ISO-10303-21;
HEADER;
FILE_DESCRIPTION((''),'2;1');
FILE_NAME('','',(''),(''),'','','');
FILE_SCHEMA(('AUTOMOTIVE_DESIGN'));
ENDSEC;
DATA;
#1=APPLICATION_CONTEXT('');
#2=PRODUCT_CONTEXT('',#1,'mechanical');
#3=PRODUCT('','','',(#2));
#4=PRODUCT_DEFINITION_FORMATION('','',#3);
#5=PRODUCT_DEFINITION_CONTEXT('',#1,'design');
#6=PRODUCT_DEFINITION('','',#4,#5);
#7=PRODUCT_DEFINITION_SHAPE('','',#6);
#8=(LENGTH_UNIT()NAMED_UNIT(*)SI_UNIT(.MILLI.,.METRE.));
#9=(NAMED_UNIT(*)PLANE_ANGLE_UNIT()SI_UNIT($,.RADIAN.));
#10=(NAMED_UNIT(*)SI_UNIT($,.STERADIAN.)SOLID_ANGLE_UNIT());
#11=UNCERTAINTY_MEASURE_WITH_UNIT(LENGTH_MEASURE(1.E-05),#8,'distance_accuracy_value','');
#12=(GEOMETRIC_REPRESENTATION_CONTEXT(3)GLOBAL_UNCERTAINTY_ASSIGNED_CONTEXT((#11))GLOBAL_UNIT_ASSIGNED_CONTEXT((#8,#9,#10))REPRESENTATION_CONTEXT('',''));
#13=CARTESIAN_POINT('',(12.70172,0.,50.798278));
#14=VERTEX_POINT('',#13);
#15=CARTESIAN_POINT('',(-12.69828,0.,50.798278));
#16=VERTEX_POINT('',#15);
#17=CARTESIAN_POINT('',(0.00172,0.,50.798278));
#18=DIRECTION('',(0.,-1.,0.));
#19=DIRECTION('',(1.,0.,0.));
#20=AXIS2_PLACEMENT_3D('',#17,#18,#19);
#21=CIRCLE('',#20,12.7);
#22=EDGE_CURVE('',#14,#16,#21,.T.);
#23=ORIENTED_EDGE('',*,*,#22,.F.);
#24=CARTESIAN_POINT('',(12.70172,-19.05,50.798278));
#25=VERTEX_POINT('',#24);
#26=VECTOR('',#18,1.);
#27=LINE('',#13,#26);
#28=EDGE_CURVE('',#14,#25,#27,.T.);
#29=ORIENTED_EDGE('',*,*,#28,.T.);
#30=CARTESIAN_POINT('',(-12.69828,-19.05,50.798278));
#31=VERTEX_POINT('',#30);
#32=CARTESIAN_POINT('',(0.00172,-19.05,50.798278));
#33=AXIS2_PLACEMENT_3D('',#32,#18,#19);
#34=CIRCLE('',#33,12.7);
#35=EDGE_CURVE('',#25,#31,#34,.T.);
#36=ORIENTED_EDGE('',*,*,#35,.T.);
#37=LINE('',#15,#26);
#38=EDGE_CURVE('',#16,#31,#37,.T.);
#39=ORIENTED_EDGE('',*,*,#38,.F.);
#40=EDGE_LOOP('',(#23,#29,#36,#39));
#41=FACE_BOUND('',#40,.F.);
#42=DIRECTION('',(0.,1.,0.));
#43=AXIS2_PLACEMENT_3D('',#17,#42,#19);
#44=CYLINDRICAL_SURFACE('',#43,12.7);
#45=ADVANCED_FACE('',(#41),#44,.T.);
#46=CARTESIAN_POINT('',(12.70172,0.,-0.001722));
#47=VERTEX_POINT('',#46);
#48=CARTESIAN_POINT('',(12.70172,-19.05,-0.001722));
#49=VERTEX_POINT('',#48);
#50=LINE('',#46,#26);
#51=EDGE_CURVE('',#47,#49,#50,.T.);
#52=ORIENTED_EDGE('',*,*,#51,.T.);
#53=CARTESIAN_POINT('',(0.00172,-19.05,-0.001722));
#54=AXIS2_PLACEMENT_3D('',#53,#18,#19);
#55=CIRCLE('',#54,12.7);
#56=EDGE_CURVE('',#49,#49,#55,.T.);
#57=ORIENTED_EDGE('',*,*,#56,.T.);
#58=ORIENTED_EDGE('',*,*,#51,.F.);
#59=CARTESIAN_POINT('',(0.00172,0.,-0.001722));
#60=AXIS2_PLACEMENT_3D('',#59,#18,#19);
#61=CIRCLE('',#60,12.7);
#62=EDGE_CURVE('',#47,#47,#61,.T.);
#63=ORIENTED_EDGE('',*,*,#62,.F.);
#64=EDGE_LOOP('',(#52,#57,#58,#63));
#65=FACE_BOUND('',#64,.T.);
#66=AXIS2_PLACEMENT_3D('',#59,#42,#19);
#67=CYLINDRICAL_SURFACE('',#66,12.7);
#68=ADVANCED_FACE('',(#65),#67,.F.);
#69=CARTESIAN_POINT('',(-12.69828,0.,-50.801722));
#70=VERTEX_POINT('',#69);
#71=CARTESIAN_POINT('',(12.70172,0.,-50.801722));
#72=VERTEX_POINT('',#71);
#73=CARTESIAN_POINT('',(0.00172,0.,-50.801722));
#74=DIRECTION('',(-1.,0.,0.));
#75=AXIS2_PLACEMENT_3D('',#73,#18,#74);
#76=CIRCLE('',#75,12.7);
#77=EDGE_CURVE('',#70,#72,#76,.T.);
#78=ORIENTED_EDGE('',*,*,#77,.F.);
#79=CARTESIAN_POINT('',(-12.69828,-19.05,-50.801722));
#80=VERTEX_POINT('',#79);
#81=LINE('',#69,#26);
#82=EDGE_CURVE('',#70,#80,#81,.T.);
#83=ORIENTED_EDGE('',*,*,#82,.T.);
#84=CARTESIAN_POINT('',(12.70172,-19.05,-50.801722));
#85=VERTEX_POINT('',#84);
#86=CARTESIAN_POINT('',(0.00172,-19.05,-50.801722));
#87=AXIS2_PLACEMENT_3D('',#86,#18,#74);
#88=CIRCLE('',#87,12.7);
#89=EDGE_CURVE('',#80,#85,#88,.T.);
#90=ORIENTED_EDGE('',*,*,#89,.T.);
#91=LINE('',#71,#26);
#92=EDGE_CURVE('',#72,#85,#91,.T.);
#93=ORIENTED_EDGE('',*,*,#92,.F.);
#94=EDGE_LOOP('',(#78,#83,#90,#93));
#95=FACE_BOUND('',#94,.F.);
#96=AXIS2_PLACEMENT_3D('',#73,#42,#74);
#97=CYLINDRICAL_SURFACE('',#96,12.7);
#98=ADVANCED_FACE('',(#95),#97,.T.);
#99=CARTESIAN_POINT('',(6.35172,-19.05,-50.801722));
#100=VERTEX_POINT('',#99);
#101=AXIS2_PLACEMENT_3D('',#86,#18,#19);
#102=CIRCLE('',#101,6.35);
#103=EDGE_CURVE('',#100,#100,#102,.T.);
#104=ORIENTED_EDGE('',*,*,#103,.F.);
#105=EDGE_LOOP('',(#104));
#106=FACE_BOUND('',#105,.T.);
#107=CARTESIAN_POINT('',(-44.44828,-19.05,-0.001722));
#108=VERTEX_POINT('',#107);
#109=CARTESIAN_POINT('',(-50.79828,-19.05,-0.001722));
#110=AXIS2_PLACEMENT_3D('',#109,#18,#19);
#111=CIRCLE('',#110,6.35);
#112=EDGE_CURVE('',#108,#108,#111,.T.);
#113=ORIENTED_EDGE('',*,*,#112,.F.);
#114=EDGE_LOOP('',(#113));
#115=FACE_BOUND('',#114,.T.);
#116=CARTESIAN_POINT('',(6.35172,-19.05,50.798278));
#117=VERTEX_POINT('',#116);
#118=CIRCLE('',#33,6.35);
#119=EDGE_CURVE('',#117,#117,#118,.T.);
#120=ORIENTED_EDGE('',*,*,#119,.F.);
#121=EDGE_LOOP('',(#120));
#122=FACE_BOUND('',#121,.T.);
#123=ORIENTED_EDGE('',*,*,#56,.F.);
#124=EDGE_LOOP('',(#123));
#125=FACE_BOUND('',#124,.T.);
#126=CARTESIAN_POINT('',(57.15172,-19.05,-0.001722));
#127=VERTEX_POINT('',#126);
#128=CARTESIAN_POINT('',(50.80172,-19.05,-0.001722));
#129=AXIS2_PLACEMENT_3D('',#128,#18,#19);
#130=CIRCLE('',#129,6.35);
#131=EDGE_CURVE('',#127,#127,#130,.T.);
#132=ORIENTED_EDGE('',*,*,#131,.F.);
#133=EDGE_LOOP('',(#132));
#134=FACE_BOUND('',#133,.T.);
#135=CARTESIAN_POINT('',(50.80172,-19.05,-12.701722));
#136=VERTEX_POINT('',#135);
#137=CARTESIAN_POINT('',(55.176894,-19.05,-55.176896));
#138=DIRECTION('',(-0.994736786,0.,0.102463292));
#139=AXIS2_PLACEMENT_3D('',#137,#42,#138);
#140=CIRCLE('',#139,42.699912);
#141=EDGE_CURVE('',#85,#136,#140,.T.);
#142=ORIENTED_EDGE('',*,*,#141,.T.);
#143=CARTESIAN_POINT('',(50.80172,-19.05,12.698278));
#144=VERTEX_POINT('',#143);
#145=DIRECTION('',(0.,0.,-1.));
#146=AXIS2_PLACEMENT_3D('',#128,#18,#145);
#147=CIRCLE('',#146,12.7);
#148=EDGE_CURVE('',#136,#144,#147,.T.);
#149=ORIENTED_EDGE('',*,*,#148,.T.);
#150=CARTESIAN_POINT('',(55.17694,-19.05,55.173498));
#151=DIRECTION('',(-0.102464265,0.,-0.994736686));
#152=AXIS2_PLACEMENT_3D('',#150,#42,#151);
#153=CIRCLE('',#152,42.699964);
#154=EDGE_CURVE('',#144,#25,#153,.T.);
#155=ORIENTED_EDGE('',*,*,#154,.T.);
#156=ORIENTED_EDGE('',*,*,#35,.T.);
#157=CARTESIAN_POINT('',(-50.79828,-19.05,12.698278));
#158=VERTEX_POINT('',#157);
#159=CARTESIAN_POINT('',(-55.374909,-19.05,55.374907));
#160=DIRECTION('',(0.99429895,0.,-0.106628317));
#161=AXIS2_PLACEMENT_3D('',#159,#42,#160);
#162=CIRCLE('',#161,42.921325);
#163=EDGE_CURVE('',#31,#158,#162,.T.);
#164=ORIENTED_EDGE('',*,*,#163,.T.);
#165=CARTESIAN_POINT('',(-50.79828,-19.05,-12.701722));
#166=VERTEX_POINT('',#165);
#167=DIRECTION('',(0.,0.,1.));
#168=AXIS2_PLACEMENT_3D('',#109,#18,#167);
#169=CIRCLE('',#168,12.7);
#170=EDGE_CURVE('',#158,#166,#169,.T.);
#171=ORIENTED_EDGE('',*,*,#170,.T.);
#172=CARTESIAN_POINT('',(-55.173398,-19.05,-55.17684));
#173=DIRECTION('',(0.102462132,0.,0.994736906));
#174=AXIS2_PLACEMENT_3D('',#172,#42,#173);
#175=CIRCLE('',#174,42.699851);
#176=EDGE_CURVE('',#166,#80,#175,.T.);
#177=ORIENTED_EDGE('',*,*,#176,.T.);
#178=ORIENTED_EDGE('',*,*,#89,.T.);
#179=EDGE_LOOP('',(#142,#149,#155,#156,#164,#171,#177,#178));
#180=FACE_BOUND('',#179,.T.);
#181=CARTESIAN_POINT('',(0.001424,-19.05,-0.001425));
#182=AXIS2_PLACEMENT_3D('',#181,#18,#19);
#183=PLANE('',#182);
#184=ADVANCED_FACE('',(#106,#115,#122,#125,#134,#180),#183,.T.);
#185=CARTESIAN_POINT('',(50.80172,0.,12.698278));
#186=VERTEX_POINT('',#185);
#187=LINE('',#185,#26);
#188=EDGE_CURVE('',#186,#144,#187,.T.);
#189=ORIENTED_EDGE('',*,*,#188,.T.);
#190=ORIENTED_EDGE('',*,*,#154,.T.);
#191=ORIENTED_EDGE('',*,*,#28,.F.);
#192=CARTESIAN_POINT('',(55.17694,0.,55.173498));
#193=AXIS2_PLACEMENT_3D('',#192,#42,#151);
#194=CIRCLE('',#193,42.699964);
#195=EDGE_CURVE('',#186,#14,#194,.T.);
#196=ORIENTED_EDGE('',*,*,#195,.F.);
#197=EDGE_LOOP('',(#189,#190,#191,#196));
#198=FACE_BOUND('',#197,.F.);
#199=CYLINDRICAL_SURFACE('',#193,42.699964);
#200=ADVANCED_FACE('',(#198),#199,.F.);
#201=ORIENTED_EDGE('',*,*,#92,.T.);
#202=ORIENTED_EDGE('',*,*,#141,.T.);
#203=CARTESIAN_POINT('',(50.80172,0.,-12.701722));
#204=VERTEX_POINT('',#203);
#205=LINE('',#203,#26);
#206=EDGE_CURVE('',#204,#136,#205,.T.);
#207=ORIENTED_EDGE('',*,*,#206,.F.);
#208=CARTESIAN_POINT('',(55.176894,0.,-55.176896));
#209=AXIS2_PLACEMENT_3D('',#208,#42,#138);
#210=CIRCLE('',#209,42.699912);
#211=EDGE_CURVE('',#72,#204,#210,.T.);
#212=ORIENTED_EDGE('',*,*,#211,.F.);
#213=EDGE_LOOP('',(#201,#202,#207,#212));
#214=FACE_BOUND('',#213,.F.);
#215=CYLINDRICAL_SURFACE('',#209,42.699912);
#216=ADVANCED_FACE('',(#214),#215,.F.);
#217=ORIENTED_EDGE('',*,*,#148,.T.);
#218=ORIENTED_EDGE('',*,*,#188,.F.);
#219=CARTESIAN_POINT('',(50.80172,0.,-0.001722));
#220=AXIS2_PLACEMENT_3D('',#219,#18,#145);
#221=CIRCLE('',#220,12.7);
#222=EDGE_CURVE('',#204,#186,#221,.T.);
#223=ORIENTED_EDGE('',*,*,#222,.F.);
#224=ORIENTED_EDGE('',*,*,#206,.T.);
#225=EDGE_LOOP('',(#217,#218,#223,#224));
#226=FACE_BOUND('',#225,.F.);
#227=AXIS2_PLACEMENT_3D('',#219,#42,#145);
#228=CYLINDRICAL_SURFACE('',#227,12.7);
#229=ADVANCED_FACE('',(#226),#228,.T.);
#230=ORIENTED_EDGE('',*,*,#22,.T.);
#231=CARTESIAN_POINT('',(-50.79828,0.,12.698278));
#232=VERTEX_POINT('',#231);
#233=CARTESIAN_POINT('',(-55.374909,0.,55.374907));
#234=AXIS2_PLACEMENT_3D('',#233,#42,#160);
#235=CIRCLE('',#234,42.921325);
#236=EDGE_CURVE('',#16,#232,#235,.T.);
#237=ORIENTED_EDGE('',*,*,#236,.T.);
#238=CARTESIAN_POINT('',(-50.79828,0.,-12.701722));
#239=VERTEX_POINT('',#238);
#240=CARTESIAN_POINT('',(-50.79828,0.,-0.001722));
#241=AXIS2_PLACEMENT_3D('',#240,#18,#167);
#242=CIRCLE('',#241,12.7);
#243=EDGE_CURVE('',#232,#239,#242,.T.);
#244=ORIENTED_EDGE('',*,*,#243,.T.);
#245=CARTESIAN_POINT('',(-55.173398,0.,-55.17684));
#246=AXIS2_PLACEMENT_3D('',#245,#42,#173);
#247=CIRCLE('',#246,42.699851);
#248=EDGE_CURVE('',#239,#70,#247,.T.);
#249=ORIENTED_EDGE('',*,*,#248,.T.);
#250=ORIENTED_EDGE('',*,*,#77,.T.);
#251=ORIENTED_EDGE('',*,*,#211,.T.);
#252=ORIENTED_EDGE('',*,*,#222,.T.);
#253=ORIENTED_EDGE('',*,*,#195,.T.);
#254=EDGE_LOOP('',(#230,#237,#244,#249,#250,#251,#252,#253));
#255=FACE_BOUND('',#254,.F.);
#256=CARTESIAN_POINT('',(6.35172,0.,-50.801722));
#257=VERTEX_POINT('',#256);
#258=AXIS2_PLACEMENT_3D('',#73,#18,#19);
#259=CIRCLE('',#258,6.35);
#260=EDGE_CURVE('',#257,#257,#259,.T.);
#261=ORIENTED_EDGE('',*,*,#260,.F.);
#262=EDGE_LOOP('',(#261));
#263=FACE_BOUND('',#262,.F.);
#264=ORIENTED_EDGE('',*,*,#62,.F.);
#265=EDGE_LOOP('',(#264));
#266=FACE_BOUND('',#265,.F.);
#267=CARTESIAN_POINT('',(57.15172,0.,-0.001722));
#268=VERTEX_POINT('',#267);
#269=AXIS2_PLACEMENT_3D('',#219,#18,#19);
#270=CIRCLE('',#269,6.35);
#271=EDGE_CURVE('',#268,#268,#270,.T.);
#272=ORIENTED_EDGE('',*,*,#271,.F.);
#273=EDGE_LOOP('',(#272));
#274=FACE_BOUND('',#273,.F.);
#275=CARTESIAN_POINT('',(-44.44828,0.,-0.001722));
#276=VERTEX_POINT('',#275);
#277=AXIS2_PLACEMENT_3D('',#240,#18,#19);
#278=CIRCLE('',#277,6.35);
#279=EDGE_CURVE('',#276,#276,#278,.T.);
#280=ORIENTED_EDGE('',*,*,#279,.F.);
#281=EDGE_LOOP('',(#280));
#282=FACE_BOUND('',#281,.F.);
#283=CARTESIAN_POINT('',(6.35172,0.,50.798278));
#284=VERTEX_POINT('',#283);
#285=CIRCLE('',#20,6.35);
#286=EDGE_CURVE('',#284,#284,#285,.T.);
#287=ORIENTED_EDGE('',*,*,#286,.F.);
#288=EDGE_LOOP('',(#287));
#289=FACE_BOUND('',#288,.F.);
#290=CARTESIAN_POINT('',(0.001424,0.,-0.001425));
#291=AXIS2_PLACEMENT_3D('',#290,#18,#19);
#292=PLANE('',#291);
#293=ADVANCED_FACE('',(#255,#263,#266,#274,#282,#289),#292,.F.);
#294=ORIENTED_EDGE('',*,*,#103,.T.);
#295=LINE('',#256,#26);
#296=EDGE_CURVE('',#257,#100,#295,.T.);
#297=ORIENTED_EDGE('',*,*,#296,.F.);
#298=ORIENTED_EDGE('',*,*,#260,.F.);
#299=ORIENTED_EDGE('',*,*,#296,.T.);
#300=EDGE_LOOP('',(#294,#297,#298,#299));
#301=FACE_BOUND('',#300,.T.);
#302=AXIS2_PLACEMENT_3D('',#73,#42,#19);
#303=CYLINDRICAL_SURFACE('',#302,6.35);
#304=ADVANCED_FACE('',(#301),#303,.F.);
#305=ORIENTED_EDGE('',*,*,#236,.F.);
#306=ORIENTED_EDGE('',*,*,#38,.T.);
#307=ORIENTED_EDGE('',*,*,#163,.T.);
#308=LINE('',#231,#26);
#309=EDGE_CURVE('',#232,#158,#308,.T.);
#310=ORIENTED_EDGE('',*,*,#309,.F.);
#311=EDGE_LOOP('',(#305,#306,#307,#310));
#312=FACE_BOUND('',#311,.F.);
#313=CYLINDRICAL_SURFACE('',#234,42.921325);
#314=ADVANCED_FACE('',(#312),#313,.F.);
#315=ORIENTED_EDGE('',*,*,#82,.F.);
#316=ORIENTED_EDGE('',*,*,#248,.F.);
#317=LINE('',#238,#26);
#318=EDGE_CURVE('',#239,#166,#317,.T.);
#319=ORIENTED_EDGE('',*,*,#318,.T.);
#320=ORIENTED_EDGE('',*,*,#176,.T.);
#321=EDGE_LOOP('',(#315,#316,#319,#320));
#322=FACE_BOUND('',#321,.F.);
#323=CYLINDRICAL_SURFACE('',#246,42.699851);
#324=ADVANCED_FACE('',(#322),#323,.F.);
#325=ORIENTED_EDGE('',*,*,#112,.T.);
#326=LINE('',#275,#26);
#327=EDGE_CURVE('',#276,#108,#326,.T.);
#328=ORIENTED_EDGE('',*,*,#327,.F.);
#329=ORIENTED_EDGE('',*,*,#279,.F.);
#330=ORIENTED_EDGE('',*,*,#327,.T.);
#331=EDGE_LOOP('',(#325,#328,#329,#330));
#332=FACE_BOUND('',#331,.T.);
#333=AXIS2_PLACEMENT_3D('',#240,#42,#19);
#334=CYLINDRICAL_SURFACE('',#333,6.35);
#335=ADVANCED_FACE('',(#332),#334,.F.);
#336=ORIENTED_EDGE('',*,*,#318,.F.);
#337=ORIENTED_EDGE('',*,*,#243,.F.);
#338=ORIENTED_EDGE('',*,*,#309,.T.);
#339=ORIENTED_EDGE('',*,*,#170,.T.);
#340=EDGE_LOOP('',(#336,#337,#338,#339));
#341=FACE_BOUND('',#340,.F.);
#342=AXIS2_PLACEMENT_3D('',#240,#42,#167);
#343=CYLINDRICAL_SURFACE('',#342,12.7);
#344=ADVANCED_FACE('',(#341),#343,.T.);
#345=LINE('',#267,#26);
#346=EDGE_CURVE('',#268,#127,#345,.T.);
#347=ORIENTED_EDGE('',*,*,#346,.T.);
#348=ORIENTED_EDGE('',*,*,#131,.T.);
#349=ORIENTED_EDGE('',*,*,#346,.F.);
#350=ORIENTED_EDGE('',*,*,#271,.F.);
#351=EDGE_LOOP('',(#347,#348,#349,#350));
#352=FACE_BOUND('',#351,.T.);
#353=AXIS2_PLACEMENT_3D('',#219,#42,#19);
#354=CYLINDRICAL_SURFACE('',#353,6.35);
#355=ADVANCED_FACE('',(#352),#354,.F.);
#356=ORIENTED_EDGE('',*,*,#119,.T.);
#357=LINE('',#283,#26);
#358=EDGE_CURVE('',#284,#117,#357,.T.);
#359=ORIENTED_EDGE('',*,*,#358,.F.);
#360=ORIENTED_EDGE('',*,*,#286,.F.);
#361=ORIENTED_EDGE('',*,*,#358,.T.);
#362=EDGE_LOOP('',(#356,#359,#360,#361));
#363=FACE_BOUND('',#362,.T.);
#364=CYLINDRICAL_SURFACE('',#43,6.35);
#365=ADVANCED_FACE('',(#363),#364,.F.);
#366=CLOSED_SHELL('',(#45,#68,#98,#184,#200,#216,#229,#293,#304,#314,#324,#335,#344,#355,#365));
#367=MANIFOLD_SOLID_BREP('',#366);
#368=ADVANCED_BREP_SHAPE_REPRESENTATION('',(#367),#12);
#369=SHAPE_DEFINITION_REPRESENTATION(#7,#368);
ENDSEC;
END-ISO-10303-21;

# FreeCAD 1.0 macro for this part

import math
import FreeCAD as App
import Part
import Sketcher
from FreeCAD import Vector
Q = App.Units.Quantity

doc = App.newDocument("Part")
params = doc.addObject("Spreadsheet::Sheet", "Params")
for row, (alias, value) in enumerate([
    ("sketch1_diameter", "1 in"),
    ("sketch1_diameter2", "0.5 in"),
    ("pad1_length", "0.75 in"),
], start=1):
    params.set(f"A{row}", alias)
    params.set(f"B{row}", "=" + value)
    params.setAlias(f"B{row}", alias)

body = doc.addObject("PartDesign::Body", "Body")

# Sketch on XZ plane
sketch1 = body.newObject("Sketcher::SketchObject", "Sketch")
sketch1.AttachmentSupport = (doc.getObject("XZ_Plane"), [""])
sketch1.MapMode = "FlatFace"
sketch1.addGeometry([
    Part.ArcOfCircle(Part.Circle(Vector(-55, 55, 0), Vector(0, 0, 1), 43), math.radians(-84), math.radians(-6)),  # 0
    Part.ArcOfCircle(Part.Circle(Vector(-51, 0, 0), Vector(0, 0, 1), 13), math.radians(90), math.radians(270)),  # 1
    Part.ArcOfCircle(Part.Circle(Vector(-55, -55, 0), Vector(0, 0, 1), 43), math.radians(6), math.radians(84)),  # 2
    Part.ArcOfCircle(Part.Circle(Vector(0, -51, 0), Vector(0, 0, 1), 13), math.radians(180), math.radians(360)),  # 3
    Part.ArcOfCircle(Part.Circle(Vector(55, -55, 0), Vector(0, 0, 1), 43), math.radians(96), math.radians(174)),  # 4
    Part.ArcOfCircle(Part.Circle(Vector(51, 0, 0), Vector(0, 0, 1), 13), math.radians(-90), math.radians(90)),  # 5
    Part.ArcOfCircle(Part.Circle(Vector(55, 55, 0), Vector(0, 0, 1), 43), math.radians(-174), math.radians(-96)),  # 6
    Part.ArcOfCircle(Part.Circle(Vector(0, 51, 0), Vector(0, 0, 1), 13), math.radians(0), math.radians(180)),  # 7
    Part.Circle(Vector(0, -51, 0), Vector(0, 0, 1), 6),  # 8
    Part.Circle(Vector(-51, 0, 0), Vector(0, 0, 1), 6),  # 9
    Part.Circle(Vector(0, 0, 0), Vector(0, 0, 1), 13),  # 10
    Part.Circle(Vector(0, 51, 0), Vector(0, 0, 1), 6),  # 11
    Part.Circle(Vector(51, 0, 0), Vector(0, 0, 1), 6),  # 12
], False)
sketch1.addConstraint([
    Sketcher.Constraint("Coincident", 0, 1, 1, 1),
    Sketcher.Constraint("Coincident", 1, 2, 2, 2),
    Sketcher.Constraint("Coincident", 2, 1, 3, 1),
    Sketcher.Constraint("Coincident", 3, 2, 4, 2),
    Sketcher.Constraint("Coincident", 4, 1, 5, 1),
    Sketcher.Constraint("Coincident", 5, 2, 6, 2),
    Sketcher.Constraint("Coincident", 6, 1, 7, 1),
    Sketcher.Constraint("Coincident", 7, 2, 0, 2),
    Sketcher.Constraint("Coincident", 8, 3, 3, 3),
    Sketcher.Constraint("Coincident", 9, 3, 1, 3),
    Sketcher.Constraint("Coincident", 11, 3, 7, 3),
    Sketcher.Constraint("Coincident", 12, 3, 5, 3),
    Sketcher.Constraint("Equal", 1, 3),
    Sketcher.Constraint("Equal", 3, 5),
    Sketcher.Constraint("Equal", 5, 7),
    Sketcher.Constraint("Equal", 8, 9),
    Sketcher.Constraint("Equal", 7, 10),
    Sketcher.Constraint("Equal", 9, 11),
    Sketcher.Constraint("Equal", 11, 12),
    Sketcher.Constraint("Horizontal", 1, 3, 5, 3),
    Sketcher.Constraint("Horizontal", 9, 3, 10, 3),
    Sketcher.Constraint("Horizontal", 8, 3, 2, 1),
    Sketcher.Constraint("Horizontal", 2, 1, 3, 2),
    Sketcher.Constraint("Horizontal", 11, 3, 6, 1),
    Sketcher.Constraint("Horizontal", 6, 1, 7, 2),
    Sketcher.Constraint("Vertical", 3, 3, 7, 3),
    Sketcher.Constraint("Vertical", 8, 3, 10, 3),
    Sketcher.Constraint("Vertical", 9, 3, 0, 1),
    Sketcher.Constraint("Vertical", 0, 1, 1, 2),
    Sketcher.Constraint("Vertical", 12, 3, 4, 1),
    Sketcher.Constraint("Vertical", 4, 1, 5, 2),
    Sketcher.Constraint("Diameter", 10, Q("1 in")),
    Sketcher.Constraint("Diameter", 8, Q("0.5 in")),
    Sketcher.Constraint("DistanceX", 1, 3, 3, 3, Q("2 in")),
    Sketcher.Constraint("DistanceY", 3, 3, 1, 3, Q("2 in")),
    Sketcher.Constraint("DistanceX", 3, 3, 5, 3, Q("2 in")),
    Sketcher.Constraint("DistanceY", 1, 3, 7, 3, Q("2 in")),
    Sketcher.Constraint("Radius", 2, 42.699851),
    Sketcher.Constraint("Radius", 0, 42.921325),
    Sketcher.Constraint("Radius", 4, 42.699912),
    Sketcher.Constraint("Radius", 6, 42.699964),
    Sketcher.Constraint("DistanceY", -1, 1, 6, 3, 55.173498),
    Sketcher.Constraint("DistanceX", 0, 3, -1, 1, 55.374909),
])
sketch1.setExpression("Constraints[31]", "Params.sketch1_diameter")
sketch1.setExpression("Constraints[32]", "Params.sketch1_diameter2")
pad1 = body.newObject("PartDesign::Pad", "Pad")
pad1.Profile = sketch1
pad1.setExpression("Length", "Params.pad1_length")

doc.recompute()
